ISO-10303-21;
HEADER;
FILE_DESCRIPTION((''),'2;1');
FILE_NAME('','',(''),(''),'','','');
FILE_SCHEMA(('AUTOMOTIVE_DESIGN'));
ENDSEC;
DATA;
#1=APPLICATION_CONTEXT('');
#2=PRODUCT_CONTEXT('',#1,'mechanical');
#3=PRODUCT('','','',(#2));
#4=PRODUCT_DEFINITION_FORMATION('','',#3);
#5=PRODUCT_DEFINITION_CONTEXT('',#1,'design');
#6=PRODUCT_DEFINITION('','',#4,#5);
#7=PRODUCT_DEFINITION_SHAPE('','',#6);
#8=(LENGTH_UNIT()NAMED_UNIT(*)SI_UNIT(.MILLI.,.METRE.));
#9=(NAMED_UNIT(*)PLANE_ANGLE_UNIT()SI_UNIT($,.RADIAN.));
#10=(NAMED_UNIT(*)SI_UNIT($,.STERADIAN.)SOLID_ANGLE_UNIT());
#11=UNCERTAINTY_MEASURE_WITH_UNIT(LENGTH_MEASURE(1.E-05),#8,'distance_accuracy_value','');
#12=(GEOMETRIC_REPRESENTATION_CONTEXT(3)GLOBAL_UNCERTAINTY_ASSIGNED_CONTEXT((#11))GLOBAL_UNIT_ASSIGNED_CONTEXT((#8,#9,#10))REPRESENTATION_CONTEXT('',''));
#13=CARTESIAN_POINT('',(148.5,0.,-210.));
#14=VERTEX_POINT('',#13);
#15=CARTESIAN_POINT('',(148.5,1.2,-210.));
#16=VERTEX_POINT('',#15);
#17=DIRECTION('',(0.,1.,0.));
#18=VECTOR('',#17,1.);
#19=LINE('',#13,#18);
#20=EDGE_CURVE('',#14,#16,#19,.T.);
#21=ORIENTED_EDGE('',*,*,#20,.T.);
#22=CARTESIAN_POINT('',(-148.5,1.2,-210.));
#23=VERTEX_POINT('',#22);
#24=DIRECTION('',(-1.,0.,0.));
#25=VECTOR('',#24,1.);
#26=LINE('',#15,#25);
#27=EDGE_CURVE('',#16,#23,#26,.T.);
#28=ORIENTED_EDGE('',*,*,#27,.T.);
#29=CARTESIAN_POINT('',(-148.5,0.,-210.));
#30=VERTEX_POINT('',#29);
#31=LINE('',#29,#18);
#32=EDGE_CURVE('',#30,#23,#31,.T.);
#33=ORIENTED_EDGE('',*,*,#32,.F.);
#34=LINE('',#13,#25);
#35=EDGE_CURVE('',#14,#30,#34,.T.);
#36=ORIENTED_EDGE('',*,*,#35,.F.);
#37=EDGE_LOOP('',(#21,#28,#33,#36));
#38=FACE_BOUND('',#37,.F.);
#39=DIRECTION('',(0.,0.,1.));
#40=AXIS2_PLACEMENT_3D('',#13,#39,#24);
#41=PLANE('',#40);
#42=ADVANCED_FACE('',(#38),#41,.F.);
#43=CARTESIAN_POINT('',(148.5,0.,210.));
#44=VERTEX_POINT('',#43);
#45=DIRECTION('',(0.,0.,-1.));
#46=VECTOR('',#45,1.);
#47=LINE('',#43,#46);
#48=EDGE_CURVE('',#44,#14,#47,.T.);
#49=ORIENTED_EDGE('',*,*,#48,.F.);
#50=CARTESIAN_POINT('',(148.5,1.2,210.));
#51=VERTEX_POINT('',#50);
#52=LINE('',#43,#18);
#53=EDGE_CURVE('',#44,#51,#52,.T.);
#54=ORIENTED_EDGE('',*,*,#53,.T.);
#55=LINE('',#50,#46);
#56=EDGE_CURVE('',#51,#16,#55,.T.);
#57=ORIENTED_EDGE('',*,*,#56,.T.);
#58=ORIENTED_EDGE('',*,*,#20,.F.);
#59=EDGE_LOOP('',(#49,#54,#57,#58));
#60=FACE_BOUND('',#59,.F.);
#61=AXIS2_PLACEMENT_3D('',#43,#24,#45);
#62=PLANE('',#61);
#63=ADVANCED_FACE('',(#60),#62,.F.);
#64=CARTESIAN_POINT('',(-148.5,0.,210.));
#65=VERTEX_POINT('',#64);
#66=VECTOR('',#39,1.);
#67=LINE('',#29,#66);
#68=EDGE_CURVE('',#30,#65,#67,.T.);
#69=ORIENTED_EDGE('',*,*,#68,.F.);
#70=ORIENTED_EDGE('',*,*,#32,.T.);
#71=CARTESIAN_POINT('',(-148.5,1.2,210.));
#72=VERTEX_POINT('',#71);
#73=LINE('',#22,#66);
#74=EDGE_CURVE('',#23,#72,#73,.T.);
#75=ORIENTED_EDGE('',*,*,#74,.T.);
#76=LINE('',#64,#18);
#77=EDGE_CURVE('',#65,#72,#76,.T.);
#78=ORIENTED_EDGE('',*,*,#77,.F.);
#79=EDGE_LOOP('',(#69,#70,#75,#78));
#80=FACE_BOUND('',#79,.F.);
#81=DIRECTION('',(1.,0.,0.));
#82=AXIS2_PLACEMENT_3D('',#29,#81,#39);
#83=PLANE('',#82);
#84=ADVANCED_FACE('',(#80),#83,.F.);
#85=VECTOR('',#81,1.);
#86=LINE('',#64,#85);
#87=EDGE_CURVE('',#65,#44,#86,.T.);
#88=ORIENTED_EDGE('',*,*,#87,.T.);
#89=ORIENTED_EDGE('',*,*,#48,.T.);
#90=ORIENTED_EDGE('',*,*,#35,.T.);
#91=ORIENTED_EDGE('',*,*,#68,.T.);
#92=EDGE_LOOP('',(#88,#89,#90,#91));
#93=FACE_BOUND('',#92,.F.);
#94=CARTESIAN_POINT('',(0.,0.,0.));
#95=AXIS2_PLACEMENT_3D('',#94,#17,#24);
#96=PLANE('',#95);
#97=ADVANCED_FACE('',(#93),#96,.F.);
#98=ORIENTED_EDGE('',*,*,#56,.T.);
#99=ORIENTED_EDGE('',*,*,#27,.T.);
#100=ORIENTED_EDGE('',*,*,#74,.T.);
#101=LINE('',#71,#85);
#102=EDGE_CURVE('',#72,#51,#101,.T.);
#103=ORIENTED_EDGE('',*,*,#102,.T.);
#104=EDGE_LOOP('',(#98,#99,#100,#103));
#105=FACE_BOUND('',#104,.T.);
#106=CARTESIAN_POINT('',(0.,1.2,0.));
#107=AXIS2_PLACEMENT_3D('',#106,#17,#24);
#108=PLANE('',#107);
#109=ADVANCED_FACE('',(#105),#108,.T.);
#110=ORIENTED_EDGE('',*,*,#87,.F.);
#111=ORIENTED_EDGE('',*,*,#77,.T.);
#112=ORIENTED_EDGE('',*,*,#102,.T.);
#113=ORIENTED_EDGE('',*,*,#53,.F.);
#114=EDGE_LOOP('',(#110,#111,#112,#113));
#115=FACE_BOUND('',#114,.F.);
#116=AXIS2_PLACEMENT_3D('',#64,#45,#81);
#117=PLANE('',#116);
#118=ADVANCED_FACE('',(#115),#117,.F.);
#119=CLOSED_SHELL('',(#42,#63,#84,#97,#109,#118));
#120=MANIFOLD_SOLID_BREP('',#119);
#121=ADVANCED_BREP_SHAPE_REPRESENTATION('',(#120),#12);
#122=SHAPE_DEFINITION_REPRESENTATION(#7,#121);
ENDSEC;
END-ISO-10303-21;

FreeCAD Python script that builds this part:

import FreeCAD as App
import Part
import Sketcher
from FreeCAD import Vector
Q = App.Units.Quantity


def add_polygon(sketch, points):
    """Adds a closed chain of lines whose ends are joined by coincident constraints."""
    first, n = sketch.GeometryCount, len(points)
    for a, b in zip(points, points[1:] + points[:1]):
        sketch.addGeometry(Part.LineSegment(App.Vector(*a, 0), App.Vector(*b, 0)), False)
    for i in range(n):
        sketch.addConstraint(Sketcher.Constraint("Coincident", first + i, 2, first + (i + 1) % n, 1))

doc = App.newDocument("Part")
body = doc.addObject("PartDesign::Body", "Body")

# Sketch on XZ plane
sketch1 = body.newObject("Sketcher::SketchObject", "Sketch")
sketch1.AttachmentSupport = (doc.getObject("XZ_Plane"), [""])
sketch1.MapMode = "FlatFace"
add_polygon(sketch1, [(148.5, 210), (148.5, -210), (-148.5, -210), (-148.5, 210)])  # lines 0-3
sketch1.addConstraint([
    Sketcher.Constraint("Vertical", 0),
    Sketcher.Constraint("Horizontal", 1),
    Sketcher.Constraint("Vertical", 2),
    Sketcher.Constraint("Horizontal", 3),
    Sketcher.Constraint("Symmetric", 0, 2, 2, 2, -1, 1),
    Sketcher.Constraint("DistanceX", 1, 2, 1, 1, Q("297 mm")),
    Sketcher.Constraint("DistanceY", 0, 2, 0, 1, Q("420 mm")),
])
pad1 = body.newObject("PartDesign::Pad", "Pad")
pad1.Profile = sketch1
pad1.Length = 1.2
pad1.Reversed = True

doc.recompute()
